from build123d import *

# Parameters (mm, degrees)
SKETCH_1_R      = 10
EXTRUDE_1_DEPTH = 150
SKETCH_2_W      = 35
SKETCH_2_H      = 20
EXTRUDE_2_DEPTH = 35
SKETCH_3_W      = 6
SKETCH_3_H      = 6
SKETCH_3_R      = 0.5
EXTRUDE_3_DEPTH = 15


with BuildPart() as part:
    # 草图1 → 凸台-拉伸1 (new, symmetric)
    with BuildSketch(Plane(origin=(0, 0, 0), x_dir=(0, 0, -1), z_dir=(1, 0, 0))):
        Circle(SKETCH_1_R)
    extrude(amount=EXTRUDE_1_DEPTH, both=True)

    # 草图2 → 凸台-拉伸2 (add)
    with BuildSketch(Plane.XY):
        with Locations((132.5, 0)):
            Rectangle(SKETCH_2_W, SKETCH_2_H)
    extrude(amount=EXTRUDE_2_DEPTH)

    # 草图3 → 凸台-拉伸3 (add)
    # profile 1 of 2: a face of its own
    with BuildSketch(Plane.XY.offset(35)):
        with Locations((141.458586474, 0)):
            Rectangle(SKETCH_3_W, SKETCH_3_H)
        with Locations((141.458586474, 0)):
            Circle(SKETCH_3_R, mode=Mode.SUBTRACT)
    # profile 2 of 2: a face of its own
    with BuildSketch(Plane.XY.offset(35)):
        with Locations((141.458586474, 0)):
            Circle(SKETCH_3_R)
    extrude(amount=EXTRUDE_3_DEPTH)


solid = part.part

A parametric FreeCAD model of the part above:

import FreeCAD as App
import Part
import Sketcher
from FreeCAD import Vector

doc = App.newDocument("Part")
body = doc.addObject("PartDesign::Body", "Body")

sketch1 = body.newObject("Sketcher::SketchObject", "Sketch")
sketch1.AttachmentSupport = (doc.getObject("YZ_Plane"), [""])
sketch1.MapMode = "FlatFace"
sketch1.addGeometry(Part.Circle(Vector(0, 0, 0), Vector(0, 0, 1), 10), False)
sketch1.addConstraint(Sketcher.Constraint("Coincident", 0, 3, -1, 1))
sketch1.addConstraint(Sketcher.Constraint("Diameter", 0, 20.0))
pad1 = body.newObject("PartDesign::Pad", "Pad")
pad1.Profile = sketch1
pad1.Length = 300
pad1.Midplane = True

sketch2 = body.newObject("Sketcher::SketchObject", "Sketch001")
sketch2.AttachmentSupport = (doc.getObject("XY_Plane"), [""])
sketch2.MapMode = "FlatFace"
sketch2.addGeometry(Part.LineSegment(Vector(115, 10, 0), Vector(115, -10, 0)), False)
sketch2.addGeometry(Part.LineSegment(Vector(115, -10, 0), Vector(150, -10, 0)), False)
sketch2.addGeometry(Part.LineSegment(Vector(150, -10, 0), Vector(150, 10, 0)), False)
sketch2.addGeometry(Part.LineSegment(Vector(150, 10, 0), Vector(115, 10, 0)), False)
sketch2.addConstraint(Sketcher.Constraint("Coincident", 0, 2, 1, 1))
sketch2.addConstraint(Sketcher.Constraint("Coincident", 1, 2, 2, 1))
sketch2.addConstraint(Sketcher.Constraint("Coincident", 2, 2, 3, 1))
sketch2.addConstraint(Sketcher.Constraint("Coincident", 3, 2, 0, 1))
sketch2.addConstraint(Sketcher.Constraint("Vertical", 0))
sketch2.addConstraint(Sketcher.Constraint("Horizontal", 1))
sketch2.addConstraint(Sketcher.Constraint("Vertical", 2))
sketch2.addConstraint(Sketcher.Constraint("Horizontal", 3))
sketch2.addConstraint(Sketcher.Constraint("DistanceX", 1, 1, 1, 2, 35.0))
sketch2.addConstraint(Sketcher.Constraint("DistanceY", 0, 2, 0, 1, 20.0))
sketch2.addConstraint(Sketcher.Constraint("DistanceX", -1, 1, 0, 2, 115.0))
sketch2.addConstraint(Sketcher.Constraint("DistanceY", 0, 2, -1, 1, 10.0))
pad2 = body.newObject("PartDesign::Pad", "Pad001")
pad2.Profile = sketch2
pad2.Length = 35

sketch3 = body.newObject("Sketcher::SketchObject", "Sketch002")
sketch3.AttachmentSupport = (doc.getObject("XY_Plane"), [""])
sketch3.MapMode = "FlatFace"
sketch3.AttachmentOffset = App.Placement(Vector(0, 0, 35), App.Rotation())
sketch3.addGeometry(Part.LineSegment(Vector(138.458586, 3, 0), Vector(138.458586, -3, 0)), False)
sketch3.addGeometry(Part.LineSegment(Vector(138.458586, -3, 0), Vector(144.458586, -3, 0)), False)
sketch3.addGeometry(Part.LineSegment(Vector(144.458586, -3, 0), Vector(144.458586, 3, 0)), False)
sketch3.addGeometry(Part.LineSegment(Vector(144.458586, 3, 0), Vector(138.458586, 3, 0)), False)
sketch3.addConstraint(Sketcher.Constraint("Coincident", 0, 2, 1, 1))
sketch3.addConstraint(Sketcher.Constraint("Coincident", 1, 2, 2, 1))
sketch3.addConstraint(Sketcher.Constraint("Coincident", 2, 2, 3, 1))
sketch3.addConstraint(Sketcher.Constraint("Coincident", 3, 2, 0, 1))
sketch3.addConstraint(Sketcher.Constraint("Vertical", 0))
sketch3.addConstraint(Sketcher.Constraint("Horizontal", 1))
sketch3.addConstraint(Sketcher.Constraint("Vertical", 2))
sketch3.addConstraint(Sketcher.Constraint("Horizontal", 3))
sketch3.addConstraint(Sketcher.Constraint("Equal", 3, 0))
sketch3.addConstraint(Sketcher.Constraint("DistanceX", 1, 1, 1, 2, 6.0))
sketch3.addConstraint(Sketcher.Constraint("DistanceY", 0, 2, -1, 1, 3.0))
sketch3.addConstraint(Sketcher.Constraint("DistanceX", -1, 1, 0, 2, 138.458586))
pad3 = body.newObject("PartDesign::Pad", "Pad002")
pad3.Profile = sketch3
pad3.Length = 15

doc.recompute()
